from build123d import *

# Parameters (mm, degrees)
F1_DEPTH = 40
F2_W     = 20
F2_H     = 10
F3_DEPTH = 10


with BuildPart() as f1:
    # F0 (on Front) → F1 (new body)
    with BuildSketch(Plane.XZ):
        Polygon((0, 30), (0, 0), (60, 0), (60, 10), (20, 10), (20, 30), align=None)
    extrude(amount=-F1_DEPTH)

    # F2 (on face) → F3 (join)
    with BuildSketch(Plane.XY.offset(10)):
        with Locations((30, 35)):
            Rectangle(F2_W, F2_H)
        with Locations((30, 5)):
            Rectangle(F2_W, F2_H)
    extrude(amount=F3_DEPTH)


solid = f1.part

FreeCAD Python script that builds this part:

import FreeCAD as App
import Part
import Sketcher
from FreeCAD import Vector
Q = App.Units.Quantity

doc = App.newDocument("Part")
body = doc.addObject("PartDesign::Body", "Body")

# Sketch on XZ plane
sketch1 = body.newObject("Sketcher::SketchObject", "Sketch")
sketch1.AttachmentSupport = (doc.getObject("XZ_Plane"), [""])
sketch1.MapMode = "FlatFace"
sketch1.addGeometry(Part.LineSegment(Vector(0, 30, 0), Vector(0, 0, 0)), False)
sketch1.addGeometry(Part.LineSegment(Vector(0, 0, 0), Vector(60, 0, 0)), False)
sketch1.addGeometry(Part.LineSegment(Vector(60, 0, 0), Vector(60, 10, 0)), False)
sketch1.addGeometry(Part.LineSegment(Vector(60, 10, 0), Vector(20, 10, 0)), False)
sketch1.addGeometry(Part.LineSegment(Vector(20, 10, 0), Vector(20, 30, 0)), False)
sketch1.addGeometry(Part.LineSegment(Vector(20, 30, 0), Vector(0, 30, 0)), False)
sketch1.addConstraint(Sketcher.Constraint("Coincident", 0, 2, 1, 1))
sketch1.addConstraint(Sketcher.Constraint("Coincident", 1, 2, 2, 1))
sketch1.addConstraint(Sketcher.Constraint("Coincident", 2, 2, 3, 1))
sketch1.addConstraint(Sketcher.Constraint("Coincident", 3, 2, 4, 1))
sketch1.addConstraint(Sketcher.Constraint("Coincident", 4, 2, 5, 1))
sketch1.addConstraint(Sketcher.Constraint("Coincident", 5, 2, 0, 1))
sketch1.addConstraint(Sketcher.Constraint("Vertical", 0))
sketch1.addConstraint(Sketcher.Constraint("Horizontal", 1))
sketch1.addConstraint(Sketcher.Constraint("Vertical", 2))
sketch1.addConstraint(Sketcher.Constraint("Horizontal", 3))
sketch1.addConstraint(Sketcher.Constraint("Vertical", 4))
sketch1.addConstraint(Sketcher.Constraint("Horizontal", 5))
sketch1.addConstraint(Sketcher.Constraint("Coincident", 0, 2, -1, 1))
sketch1.addConstraint(Sketcher.Constraint("Equal", 5, 4))
sketch1.addConstraint(Sketcher.Constraint("DistanceX", 1, 1, 1, 2, Q("60 mm")))
sketch1.addConstraint(Sketcher.Constraint("DistanceX", 3, 2, 3, 1, Q("40 mm")))
sketch1.addConstraint(Sketcher.Constraint("DistanceY", 0, 2, 0, 1, Q("30 mm")))
pad1 = body.newObject("PartDesign::Pad", "Pad")
pad1.Profile = sketch1
pad1.Length = 40
pad1.Reversed = True

# Sketch on XY plane
sketch2 = body.newObject("Sketcher::SketchObject", "Sketch001")
sketch2.AttachmentSupport = (doc.getObject("XY_Plane"), [""])
sketch2.MapMode = "FlatFace"
sketch2.AttachmentOffset = App.Placement(Vector(0, 0, 10), App.Rotation())
sketch2.addGeometry(Part.LineSegment(Vector(20, 40, 0), Vector(20, 30, 0)), False)
sketch2.addGeometry(Part.LineSegment(Vector(20, 30, 0), Vector(40, 30, 0)), False)
sketch2.addGeometry(Part.LineSegment(Vector(40, 30, 0), Vector(40, 40, 0)), False)
sketch2.addGeometry(Part.LineSegment(Vector(40, 40, 0), Vector(20, 40, 0)), False)
sketch2.addGeometry(Part.LineSegment(Vector(20, 10, 0), Vector(20, 0, 0)), False)
sketch2.addGeometry(Part.LineSegment(Vector(20, 0, 0), Vector(40, 0, 0)), False)
sketch2.addGeometry(Part.LineSegment(Vector(40, 0, 0), Vector(40, 10, 0)), False)
sketch2.addGeometry(Part.LineSegment(Vector(40, 10, 0), Vector(20, 10, 0)), False)
sketch2.addConstraint(Sketcher.Constraint("Coincident", 0, 2, 1, 1))
sketch2.addConstraint(Sketcher.Constraint("Coincident", 1, 2, 2, 1))
sketch2.addConstraint(Sketcher.Constraint("Coincident", 2, 2, 3, 1))
sketch2.addConstraint(Sketcher.Constraint("Coincident", 3, 2, 0, 1))
sketch2.addConstraint(Sketcher.Constraint("Coincident", 4, 2, 5, 1))
sketch2.addConstraint(Sketcher.Constraint("Coincident", 5, 2, 6, 1))
sketch2.addConstraint(Sketcher.Constraint("Coincident", 6, 2, 7, 1))
sketch2.addConstraint(Sketcher.Constraint("Coincident", 7, 2, 4, 1))
sketch2.addConstraint(Sketcher.Constraint("Vertical", 0))
sketch2.addConstraint(Sketcher.Constraint("Horizontal", 1))
sketch2.addConstraint(Sketcher.Constraint("Vertical", 2))
sketch2.addConstraint(Sketcher.Constraint("Horizontal", 3))
sketch2.addConstraint(Sketcher.Constraint("Vertical", 4))
sketch2.addConstraint(Sketcher.Constraint("Horizontal", 5))
sketch2.addConstraint(Sketcher.Constraint("Vertical", 6))
sketch2.addConstraint(Sketcher.Constraint("Horizontal", 7))
sketch2.addConstraint(Sketcher.Constraint("PointOnObject", 4, 2, -1))
sketch2.addConstraint(Sketcher.Constraint("Vertical", 3, 2, 4, 2))
sketch2.addConstraint(Sketcher.Constraint("Vertical", 2, 2, 5, 2))
sketch2.addConstraint(Sketcher.Constraint("Equal", 2, 4))
sketch2.addConstraint(Sketcher.Constraint("DistanceX", 1, 1, 1, 2, Q("20 mm")))
sketch2.addConstraint(Sketcher.Constraint("DistanceY", 0, 2, 0, 1, Q("10 mm")))
sketch2.addConstraint(Sketcher.Constraint("DistanceX", -1, 1, 0, 2, Q("20 mm")))
sketch2.addConstraint(Sketcher.Constraint("DistanceY", -1, 1, 0, 2, Q("30 mm")))
pad2 = body.newObject("PartDesign::Pad", "Pad001")
pad2.Profile = sketch2
pad2.Length = 10

doc.recompute()
